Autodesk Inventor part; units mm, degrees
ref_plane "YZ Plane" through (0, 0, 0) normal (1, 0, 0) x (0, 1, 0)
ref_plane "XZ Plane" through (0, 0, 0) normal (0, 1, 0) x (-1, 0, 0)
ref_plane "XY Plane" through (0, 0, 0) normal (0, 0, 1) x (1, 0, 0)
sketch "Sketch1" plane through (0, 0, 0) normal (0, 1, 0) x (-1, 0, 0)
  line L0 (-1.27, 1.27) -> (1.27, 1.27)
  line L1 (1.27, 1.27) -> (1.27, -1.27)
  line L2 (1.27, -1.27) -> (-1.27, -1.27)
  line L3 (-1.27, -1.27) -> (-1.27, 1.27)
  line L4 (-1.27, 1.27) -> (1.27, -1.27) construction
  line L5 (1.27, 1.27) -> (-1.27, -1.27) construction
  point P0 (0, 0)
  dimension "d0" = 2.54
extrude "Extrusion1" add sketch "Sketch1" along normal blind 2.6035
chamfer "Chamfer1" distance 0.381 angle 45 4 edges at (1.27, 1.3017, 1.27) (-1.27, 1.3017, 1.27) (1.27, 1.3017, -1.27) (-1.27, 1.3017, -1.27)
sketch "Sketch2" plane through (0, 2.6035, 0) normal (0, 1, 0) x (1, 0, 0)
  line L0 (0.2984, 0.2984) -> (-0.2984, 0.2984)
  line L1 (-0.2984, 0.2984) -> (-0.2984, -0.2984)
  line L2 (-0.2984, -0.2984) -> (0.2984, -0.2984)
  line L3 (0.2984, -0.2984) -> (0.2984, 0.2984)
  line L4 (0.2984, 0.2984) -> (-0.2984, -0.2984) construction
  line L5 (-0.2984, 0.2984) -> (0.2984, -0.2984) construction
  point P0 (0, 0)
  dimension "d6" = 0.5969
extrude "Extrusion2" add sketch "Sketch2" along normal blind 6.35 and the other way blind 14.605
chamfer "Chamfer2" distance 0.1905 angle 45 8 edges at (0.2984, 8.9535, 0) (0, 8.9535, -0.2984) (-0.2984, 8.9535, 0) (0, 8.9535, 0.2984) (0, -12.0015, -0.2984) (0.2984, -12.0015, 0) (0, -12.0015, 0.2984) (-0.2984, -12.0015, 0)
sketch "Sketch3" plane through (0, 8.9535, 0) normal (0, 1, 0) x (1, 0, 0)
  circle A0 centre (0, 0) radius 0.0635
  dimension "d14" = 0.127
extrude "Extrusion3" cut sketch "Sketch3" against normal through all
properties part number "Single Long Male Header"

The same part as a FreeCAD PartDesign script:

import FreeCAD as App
import Part
import Sketcher
from FreeCAD import Vector
Q = App.Units.Quantity


def edges_at(feature, points):
    """Names of the edges that pass closest to the given points."""
    edges = feature.Shape.Edges
    near = lambda p: min(range(len(edges)), key=lambda i: edges[i].distToShape(Part.Vertex(*p))[0])
    return sorted({f"Edge{near(p) + 1}" for p in points})


def add_polygon(sketch, points):
    """Adds a closed chain of lines whose ends are joined by coincident constraints."""
    first, n = sketch.GeometryCount, len(points)
    for a, b in zip(points, points[1:] + points[:1]):
        sketch.addGeometry(Part.LineSegment(App.Vector(*a, 0), App.Vector(*b, 0)), False)
    for i in range(n):
        sketch.addConstraint(Sketcher.Constraint("Coincident", first + i, 2, first + (i + 1) % n, 1))

doc = App.newDocument("Part")
body = doc.addObject("PartDesign::Body", "Body")

sketch1 = body.newObject("Sketcher::SketchObject", "Sketch")
sketch1.AttachmentSupport = (doc.getObject("XZ_Plane"), [""])
sketch1.MapMode = "FlatFace"
add_polygon(sketch1, [(-1.3, 1.3), (1.3, 1.3), (1.3, -1.3), (-1.3, -1.3)])
sketch1.addConstraint([
    Sketcher.Constraint("Horizontal", 0),
    Sketcher.Constraint("Vertical", 1),
    Sketcher.Constraint("Horizontal", 2),
    Sketcher.Constraint("Vertical", 3),
    Sketcher.Constraint("Symmetric", 0, 2, 2, 2, -1, 1),
    Sketcher.Constraint("Equal", 2, 1),
    Sketcher.Constraint("DistanceX", 0, 1, 0, 2, Q("0.1 in")),
])
pad1 = body.newObject("PartDesign::Pad", "Pad")
pad1.Profile = sketch1
pad1.Length = Q("0.1025 in")
pad1.Reversed = True
doc.recompute()

chamfer = body.newObject("PartDesign::Chamfer", "Chamfer")
chamfer.Base = (pad1, edges_at(pad1, [
    (1.27, 1.302, 1.27),
    (-1.27, 1.302, 1.27),
    (1.27, 1.302, -1.27),
    (-1.27, 1.302, -1.27),
]))
chamfer.Size = Q("0.015 in")

sketch2 = body.newObject("Sketcher::SketchObject", "Sketch001")
sketch2.AttachmentSupport = (doc.getObject("XZ_Plane"), [""])
sketch2.MapMode = "FlatFace"
sketch2.AttachmentOffset = App.Placement(Vector(0, 0, -0.1025 * 25.4), App.Rotation())
add_polygon(sketch2, [(0.3, 0.3), (0.3, -0.3), (-0.3, -0.3), (-0.3, 0.3)])
sketch2.addConstraint([
    Sketcher.Constraint("Vertical", 0),
    Sketcher.Constraint("Horizontal", 1),
    Sketcher.Constraint("Vertical", 2),
    Sketcher.Constraint("Horizontal", 3),
    Sketcher.Constraint("Symmetric", 0, 2, 2, 2, -1, 1),
    Sketcher.Constraint("Equal", 3, 0),
    Sketcher.Constraint("DistanceX", 1, 2, 1, 1, Q("0.0235 in")),
])
pad2 = body.newObject("PartDesign::Pad", "Pad001")
pad2.Profile = sketch2
pad2.Type = "TwoLengths"
pad2.Length = Q("0.25 in")
pad2.Length2 = Q("0.575 in")
pad2.Reversed = True
doc.recompute()

chamfer2 = body.newObject("PartDesign::Chamfer", "Chamfer001")
chamfer2.Base = (pad2, edges_at(pad2, [
    (0.298, 8.954, 0),
    (0, 8.954, -0.298),
    (-0.298, 8.954, 0),
    (0, 8.954, 0.298),
    (0, -12.002, -0.298),
    (0.298, -12.002, 0),
    (0, -12.002, 0.298),
    (-0.298, -12.002, 0),
]))
chamfer2.Size = Q("0.0075 in")

sketch3 = body.newObject("Sketcher::SketchObject", "Sketch002")
sketch3.AttachmentSupport = (doc.getObject("XZ_Plane"), [""])
sketch3.MapMode = "FlatFace"
sketch3.AttachmentOffset = App.Placement(Vector(0, 0, -0.3525 * 25.4), App.Rotation())
sketch3.addGeometry(Part.Circle(Vector(0, 0, 0), Vector(0, 0, 1), 0.06), False)
sketch3.addConstraint([
    Sketcher.Constraint("Coincident", 0, 3, -1, 1),
    Sketcher.Constraint("Diameter", 0, Q("0.005 in")),
])
pocket1 = body.newObject("PartDesign::Pocket", "Pocket")
pocket1.Profile = sketch3
pocket1.Type = "ThroughAll"
pocket1.Reversed = True

doc.recompute()
